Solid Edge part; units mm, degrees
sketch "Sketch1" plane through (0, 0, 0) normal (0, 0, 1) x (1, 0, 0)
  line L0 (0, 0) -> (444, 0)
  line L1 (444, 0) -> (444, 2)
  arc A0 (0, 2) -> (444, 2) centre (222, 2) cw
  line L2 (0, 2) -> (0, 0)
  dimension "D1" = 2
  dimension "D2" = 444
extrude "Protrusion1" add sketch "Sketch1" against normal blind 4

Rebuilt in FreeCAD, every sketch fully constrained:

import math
import FreeCAD as App
import Part
import Sketcher

doc = App.newDocument("Part")
params = doc.addObject("Spreadsheet::Sheet", "Params")
for row, (alias, value) in enumerate([
    ("sketch1_radius", "222 mm"),
    ("sketch1_height", "2 mm"),
    ("pad1_length", "4 mm"),
], start=1):
    params.set(f"A{row}", alias)
    params.set(f"B{row}", "=" + value)
    params.setAlias(f"B{row}", alias)

body = doc.addObject("PartDesign::Body", "Body")

# Sketch on XY plane
sketch1 = doc.addObject("Sketcher::SketchObject", "Sketch")
body.addObject(sketch1)
sketch1.AttachmentSupport = (doc.XY_Plane, [""])
sketch1.MapMode = "FlatFace"
sketch1.addGeometry([
    Part.LineSegment(App.Vector(0, 2, 0), App.Vector(0, 0, 0)),
    Part.LineSegment(App.Vector(0, 0, 0), App.Vector(444, 0, 0)),
    Part.LineSegment(App.Vector(444, 0, 0), App.Vector(444, 2, 0)),
    Part.ArcOfCircle(Part.Circle(App.Vector(222, 2, 0), App.Vector(0, 0, 1), 222), math.radians(0), math.radians(180)),
], False)
sketch1.addConstraint([
    Sketcher.Constraint("Coincident", 0, 2, 1, 1),
    Sketcher.Constraint("Coincident", 1, 2, 2, 1),
    Sketcher.Constraint("Tangent", 2, 2, 3, 1),
    Sketcher.Constraint("Tangent", 3, 2, 0, 1),
    Sketcher.Constraint("Vertical", 0),
    Sketcher.Constraint("Horizontal", 1),
    Sketcher.Constraint("Vertical", 2),
    Sketcher.Constraint("Coincident", 0, 2, -1, 1),
    Sketcher.Constraint("Radius", 3, 222.0),
    Sketcher.Constraint("DistanceY", 0, 2, 0, 1, 2.0),
])
sketch1.setExpression("Constraints[8]", "Params.sketch1_radius")
sketch1.setExpression("Constraints[9]", "Params.sketch1_height")
pad1 = doc.addObject("PartDesign::Pad", "Pad")
body.addObject(pad1)
pad1.Profile = sketch1
pad1.setExpression("Length", "Params.pad1_length")
pad1.Reversed = True

doc.recompute()
